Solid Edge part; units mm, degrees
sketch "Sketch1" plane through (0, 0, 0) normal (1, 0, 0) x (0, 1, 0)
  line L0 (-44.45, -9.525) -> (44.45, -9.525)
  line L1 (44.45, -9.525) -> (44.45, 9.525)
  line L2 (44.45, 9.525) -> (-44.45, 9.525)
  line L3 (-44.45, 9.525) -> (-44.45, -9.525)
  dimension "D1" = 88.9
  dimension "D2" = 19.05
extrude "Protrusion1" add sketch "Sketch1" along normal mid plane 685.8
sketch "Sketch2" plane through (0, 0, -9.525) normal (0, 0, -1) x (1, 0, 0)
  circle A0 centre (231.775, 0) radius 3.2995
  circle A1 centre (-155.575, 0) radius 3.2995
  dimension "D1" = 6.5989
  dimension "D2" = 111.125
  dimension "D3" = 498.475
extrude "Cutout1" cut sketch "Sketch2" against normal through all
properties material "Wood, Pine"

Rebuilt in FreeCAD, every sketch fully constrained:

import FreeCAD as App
import Part
import Sketcher

V = App.Vector
Q = App.Units.Quantity


def add_polygon(sketch, points):
    """Adds a closed chain of lines whose ends are joined by coincident constraints."""
    first, n = sketch.GeometryCount, len(points)
    for a, b in zip(points, points[1:] + points[:1]):
        sketch.addGeometry(Part.LineSegment(App.Vector(*a, 0), App.Vector(*b, 0)), False)
    for i in range(n):
        sketch.addConstraint(Sketcher.Constraint("Coincident", first + i, 2, first + (i + 1) % n, 1))

doc = App.newDocument("Part")
params = doc.addObject("Spreadsheet::Sheet", "Params")
for row, (alias, value) in enumerate([
    ("sketch1_height", "0.75 in"),
    ("pad1_length", "27 in"),
], start=1):
    params.set(f"A{row}", alias)
    params.set(f"B{row}", "=" + value)
    params.setAlias(f"B{row}", alias)

body = doc.addObject("PartDesign::Body", "Body")

sketch1 = body.newObject("Sketcher::SketchObject", "Sketch")
sketch1.AttachmentSupport = (doc.getObject("YZ_Plane"), [""])
sketch1.MapMode = "FlatFace"
add_polygon(sketch1, [(-44, 10), (-44, -10), (44, -10), (44, 10)])
sketch1.addConstraint(Sketcher.Constraint("Vertical", 0))
sketch1.addConstraint(Sketcher.Constraint("Horizontal", 1))
sketch1.addConstraint(Sketcher.Constraint("Vertical", 2))
sketch1.addConstraint(Sketcher.Constraint("Horizontal", 3))
sketch1.addConstraint(Sketcher.Constraint("Symmetric", 0, 2, 2, 2, -1, 1))
sketch1.addConstraint(Sketcher.Constraint("DistanceX", 0, 2, -1, 1, Q("1.75 in")))
sketch1.addConstraint(Sketcher.Constraint("DistanceY", 0, 2, 0, 1, Q("0.75 in")))
sketch1.setExpression("Constraints[10]", "Params.sketch1_height")
pad1 = body.newObject("PartDesign::Pad", "Pad")
pad1.Profile = sketch1
pad1.setExpression("Length", "Params.pad1_length")
pad1.Midplane = True

sketch2 = body.newObject("Sketcher::SketchObject", "Sketch001")
sketch2.AttachmentSupport = (doc.getObject("XY_Plane"), [""])
sketch2.MapMode = "FlatFace"
sketch2.AttachmentOffset = App.Placement(V(0, 0, -0.375 * 25.4), App.Rotation())
sketch2.addGeometry(Part.Circle(V(231.8, 0, 0), V(0, 0, 1), 3.3), False)
sketch2.addGeometry(Part.Circle(V(-155.6, 0, 0), V(0, 0, 1), 3.3), False)
sketch2.addConstraint(Sketcher.Constraint("Equal", 0, 1))
sketch2.addConstraint(Sketcher.Constraint("PointOnObject", 0, 3, -1))
sketch2.addConstraint(Sketcher.Constraint("PointOnObject", 1, 3, -1))
sketch2.addConstraint(Sketcher.Constraint("Diameter", 0, Q("0.2598 in")))
sketch2.addConstraint(Sketcher.Constraint("DistanceX", 1, 3, 0, 3, Q("15.25 in")))
sketch2.addConstraint(Sketcher.Constraint("DistanceX", -1, 1, 0, 3, Q("9.125 in")))
pocket1 = body.newObject("PartDesign::Pocket", "Pocket")
pocket1.Profile = sketch2
pocket1.Type = "ThroughAll"
pocket1.Reversed = True

doc.recompute()
